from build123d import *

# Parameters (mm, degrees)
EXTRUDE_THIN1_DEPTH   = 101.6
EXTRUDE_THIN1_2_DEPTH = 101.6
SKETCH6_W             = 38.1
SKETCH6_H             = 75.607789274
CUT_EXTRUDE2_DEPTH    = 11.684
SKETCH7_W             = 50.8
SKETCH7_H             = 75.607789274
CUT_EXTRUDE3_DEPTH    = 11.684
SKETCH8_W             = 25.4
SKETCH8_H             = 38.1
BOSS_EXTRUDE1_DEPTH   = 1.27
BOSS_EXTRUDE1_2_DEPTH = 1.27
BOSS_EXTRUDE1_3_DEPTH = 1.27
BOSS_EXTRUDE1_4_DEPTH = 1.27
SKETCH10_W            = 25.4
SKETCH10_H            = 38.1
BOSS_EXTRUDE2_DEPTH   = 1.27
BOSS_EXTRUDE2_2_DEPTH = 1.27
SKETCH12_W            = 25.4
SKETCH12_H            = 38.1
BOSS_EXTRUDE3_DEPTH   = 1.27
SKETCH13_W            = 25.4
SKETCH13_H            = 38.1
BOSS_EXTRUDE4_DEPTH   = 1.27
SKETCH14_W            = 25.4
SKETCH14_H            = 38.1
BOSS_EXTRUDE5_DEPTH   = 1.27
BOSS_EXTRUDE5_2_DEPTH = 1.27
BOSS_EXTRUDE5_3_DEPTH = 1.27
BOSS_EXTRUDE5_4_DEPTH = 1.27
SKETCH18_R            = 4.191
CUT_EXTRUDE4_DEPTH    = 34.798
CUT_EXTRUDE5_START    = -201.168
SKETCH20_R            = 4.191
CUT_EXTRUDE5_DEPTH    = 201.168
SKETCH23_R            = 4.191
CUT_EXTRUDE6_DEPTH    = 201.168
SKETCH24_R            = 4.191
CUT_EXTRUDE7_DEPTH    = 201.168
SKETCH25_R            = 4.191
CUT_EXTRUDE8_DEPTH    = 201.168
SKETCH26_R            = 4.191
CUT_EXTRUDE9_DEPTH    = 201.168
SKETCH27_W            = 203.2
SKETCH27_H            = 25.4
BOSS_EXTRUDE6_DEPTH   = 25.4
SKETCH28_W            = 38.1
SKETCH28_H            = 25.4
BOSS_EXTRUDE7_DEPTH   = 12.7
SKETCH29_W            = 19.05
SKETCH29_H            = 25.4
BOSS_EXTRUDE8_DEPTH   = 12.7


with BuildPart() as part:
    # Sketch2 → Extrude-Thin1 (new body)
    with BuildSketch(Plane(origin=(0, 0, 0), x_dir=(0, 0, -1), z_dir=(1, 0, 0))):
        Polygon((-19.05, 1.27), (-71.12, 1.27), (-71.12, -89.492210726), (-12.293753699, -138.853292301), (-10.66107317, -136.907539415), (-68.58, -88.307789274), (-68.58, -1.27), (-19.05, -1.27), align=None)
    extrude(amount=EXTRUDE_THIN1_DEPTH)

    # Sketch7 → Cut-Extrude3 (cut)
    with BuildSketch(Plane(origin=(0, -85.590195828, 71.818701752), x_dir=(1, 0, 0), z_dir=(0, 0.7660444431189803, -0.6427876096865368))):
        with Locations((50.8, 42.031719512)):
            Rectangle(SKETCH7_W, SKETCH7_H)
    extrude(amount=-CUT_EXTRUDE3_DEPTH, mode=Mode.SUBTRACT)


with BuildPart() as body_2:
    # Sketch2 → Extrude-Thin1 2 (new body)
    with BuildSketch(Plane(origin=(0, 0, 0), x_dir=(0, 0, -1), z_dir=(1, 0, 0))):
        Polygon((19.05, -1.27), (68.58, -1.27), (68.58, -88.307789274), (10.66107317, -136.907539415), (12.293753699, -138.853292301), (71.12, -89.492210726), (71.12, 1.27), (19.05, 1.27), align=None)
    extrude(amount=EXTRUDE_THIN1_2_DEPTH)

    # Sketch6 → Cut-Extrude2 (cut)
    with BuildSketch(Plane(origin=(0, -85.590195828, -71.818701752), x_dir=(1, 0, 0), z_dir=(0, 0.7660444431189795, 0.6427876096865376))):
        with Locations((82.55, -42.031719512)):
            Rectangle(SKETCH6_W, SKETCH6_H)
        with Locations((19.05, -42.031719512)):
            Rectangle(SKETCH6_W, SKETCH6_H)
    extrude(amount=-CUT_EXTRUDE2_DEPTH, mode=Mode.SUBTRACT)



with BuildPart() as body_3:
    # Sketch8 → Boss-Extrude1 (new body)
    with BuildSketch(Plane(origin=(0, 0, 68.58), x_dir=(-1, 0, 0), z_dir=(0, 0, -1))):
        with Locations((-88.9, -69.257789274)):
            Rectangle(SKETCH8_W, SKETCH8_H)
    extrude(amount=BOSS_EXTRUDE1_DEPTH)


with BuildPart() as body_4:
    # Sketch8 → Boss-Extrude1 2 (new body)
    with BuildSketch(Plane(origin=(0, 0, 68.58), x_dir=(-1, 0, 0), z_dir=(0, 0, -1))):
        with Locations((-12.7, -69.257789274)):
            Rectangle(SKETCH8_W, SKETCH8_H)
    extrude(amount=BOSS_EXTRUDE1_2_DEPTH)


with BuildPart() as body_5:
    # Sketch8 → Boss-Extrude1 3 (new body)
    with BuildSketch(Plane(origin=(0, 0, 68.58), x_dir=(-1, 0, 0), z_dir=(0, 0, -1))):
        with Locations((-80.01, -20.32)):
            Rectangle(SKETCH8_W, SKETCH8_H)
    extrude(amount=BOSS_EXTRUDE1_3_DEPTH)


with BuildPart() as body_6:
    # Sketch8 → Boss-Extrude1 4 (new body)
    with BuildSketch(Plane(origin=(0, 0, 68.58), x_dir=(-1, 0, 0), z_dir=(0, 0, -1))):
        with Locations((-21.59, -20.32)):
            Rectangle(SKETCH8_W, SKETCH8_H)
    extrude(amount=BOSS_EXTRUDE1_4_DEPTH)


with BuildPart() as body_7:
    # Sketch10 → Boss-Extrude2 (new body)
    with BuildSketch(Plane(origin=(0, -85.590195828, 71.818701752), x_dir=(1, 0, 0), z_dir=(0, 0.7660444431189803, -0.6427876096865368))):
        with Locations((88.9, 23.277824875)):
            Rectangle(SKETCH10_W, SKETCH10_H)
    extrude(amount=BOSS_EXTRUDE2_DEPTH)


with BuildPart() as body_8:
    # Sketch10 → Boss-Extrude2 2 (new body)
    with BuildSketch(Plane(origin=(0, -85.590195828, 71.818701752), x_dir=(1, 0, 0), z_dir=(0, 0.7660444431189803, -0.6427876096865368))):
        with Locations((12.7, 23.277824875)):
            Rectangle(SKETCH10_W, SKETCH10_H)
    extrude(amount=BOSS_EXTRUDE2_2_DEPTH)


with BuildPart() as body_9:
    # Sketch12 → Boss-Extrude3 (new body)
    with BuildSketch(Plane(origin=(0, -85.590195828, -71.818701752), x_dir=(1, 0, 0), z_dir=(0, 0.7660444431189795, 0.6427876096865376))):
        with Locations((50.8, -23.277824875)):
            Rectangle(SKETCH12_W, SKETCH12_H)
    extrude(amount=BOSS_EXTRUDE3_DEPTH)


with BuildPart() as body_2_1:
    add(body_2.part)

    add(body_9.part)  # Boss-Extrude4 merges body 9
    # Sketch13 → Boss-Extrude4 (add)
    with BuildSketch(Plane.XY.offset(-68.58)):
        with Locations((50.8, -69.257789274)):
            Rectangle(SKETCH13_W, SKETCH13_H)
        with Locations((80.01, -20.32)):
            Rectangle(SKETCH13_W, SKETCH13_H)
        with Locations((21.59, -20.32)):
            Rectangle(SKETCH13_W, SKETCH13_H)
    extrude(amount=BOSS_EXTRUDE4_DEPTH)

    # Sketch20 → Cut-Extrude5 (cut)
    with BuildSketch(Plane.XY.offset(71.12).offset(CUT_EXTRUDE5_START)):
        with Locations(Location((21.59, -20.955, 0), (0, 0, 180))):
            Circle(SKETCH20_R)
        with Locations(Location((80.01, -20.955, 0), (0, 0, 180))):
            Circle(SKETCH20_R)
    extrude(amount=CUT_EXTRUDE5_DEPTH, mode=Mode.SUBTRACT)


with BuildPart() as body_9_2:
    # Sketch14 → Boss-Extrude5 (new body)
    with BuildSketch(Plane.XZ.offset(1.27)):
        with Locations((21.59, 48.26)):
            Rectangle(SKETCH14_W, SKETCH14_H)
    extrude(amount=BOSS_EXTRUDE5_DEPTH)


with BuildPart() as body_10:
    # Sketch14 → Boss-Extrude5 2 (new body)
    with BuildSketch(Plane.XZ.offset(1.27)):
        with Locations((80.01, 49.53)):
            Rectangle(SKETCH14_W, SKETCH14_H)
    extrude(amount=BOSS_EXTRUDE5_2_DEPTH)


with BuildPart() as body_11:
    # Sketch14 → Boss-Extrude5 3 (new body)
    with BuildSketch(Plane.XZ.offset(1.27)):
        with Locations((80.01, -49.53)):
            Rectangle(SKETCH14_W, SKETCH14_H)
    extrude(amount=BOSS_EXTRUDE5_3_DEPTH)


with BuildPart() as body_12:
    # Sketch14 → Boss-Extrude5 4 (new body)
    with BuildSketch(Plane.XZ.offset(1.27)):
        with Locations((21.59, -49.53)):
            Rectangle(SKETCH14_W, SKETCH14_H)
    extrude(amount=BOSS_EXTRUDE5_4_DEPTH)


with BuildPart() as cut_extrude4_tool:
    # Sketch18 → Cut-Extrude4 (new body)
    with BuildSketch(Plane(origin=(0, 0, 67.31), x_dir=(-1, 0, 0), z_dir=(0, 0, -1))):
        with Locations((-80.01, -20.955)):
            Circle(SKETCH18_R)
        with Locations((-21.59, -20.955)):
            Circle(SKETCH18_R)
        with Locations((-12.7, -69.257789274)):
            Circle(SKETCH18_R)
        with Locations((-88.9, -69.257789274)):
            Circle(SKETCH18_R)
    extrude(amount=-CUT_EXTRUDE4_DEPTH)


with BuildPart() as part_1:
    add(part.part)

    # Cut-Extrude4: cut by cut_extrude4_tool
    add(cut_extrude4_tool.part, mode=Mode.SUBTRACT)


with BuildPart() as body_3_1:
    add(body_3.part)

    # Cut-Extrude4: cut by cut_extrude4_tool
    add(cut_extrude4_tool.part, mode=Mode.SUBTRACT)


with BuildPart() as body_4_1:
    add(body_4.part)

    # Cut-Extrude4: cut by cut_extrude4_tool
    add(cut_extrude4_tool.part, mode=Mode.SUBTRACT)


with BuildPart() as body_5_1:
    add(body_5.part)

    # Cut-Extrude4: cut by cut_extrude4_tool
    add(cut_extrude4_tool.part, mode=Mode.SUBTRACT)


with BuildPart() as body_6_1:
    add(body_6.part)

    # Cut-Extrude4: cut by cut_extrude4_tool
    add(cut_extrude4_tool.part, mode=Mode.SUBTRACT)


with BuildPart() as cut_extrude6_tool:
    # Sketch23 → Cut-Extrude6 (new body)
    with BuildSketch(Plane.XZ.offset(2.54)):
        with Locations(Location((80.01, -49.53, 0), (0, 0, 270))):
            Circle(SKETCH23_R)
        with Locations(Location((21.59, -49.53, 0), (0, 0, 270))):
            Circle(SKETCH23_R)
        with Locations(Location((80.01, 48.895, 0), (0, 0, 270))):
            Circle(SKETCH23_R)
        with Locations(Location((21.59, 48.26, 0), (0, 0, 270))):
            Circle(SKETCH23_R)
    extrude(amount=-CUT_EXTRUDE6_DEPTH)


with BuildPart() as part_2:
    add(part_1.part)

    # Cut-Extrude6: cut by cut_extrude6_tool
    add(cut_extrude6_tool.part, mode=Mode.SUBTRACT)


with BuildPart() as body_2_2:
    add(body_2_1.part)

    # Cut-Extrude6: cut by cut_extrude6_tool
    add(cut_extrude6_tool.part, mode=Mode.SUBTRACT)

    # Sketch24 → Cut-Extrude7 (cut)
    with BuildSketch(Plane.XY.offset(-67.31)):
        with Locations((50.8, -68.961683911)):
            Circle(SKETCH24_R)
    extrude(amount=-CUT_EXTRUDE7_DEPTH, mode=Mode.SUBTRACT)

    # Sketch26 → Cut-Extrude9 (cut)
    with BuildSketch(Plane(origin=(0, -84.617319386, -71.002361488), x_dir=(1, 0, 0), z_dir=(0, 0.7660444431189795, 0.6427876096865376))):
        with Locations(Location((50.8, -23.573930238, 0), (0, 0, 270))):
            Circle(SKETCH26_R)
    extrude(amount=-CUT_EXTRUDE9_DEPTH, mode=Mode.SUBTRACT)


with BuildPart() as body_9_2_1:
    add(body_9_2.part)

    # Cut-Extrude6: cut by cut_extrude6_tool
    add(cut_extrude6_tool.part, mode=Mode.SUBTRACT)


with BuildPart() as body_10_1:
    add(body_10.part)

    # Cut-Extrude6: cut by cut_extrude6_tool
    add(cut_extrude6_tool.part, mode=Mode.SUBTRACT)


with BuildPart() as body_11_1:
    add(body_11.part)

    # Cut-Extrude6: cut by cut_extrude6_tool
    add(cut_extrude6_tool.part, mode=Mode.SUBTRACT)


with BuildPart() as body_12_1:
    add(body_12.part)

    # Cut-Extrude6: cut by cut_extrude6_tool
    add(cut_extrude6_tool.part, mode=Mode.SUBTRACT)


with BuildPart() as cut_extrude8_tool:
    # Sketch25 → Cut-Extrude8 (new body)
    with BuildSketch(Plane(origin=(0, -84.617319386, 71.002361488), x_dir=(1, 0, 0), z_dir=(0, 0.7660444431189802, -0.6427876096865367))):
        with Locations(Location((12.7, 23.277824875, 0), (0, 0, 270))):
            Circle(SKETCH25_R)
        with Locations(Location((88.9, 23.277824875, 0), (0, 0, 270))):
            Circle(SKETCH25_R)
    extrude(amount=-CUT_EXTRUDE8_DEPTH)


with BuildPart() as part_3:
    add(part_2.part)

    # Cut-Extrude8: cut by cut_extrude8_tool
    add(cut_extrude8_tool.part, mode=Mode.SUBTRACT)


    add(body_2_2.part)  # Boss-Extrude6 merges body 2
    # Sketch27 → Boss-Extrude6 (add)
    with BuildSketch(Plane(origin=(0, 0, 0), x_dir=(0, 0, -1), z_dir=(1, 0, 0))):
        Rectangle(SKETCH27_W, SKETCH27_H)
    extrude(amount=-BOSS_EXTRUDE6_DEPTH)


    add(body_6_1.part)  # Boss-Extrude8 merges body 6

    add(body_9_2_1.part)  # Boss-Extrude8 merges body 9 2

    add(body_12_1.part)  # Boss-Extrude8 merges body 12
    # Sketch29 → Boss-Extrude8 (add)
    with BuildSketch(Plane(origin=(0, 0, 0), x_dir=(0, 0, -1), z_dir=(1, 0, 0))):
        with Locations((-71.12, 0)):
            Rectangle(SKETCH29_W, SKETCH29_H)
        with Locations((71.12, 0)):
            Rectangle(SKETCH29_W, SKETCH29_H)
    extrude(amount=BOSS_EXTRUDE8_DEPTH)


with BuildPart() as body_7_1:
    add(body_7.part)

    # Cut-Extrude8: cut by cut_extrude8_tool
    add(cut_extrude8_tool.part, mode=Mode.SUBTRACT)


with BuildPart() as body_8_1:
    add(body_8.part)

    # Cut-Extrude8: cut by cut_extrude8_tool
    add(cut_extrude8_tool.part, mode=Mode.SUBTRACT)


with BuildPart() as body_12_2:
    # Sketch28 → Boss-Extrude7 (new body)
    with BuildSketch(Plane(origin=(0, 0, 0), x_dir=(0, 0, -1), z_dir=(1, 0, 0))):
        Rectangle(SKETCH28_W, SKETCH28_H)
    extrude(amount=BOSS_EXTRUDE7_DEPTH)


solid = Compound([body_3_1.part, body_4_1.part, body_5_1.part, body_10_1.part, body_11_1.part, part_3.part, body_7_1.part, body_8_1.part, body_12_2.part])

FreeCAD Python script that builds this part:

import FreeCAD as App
import Part
import Sketcher

V = App.Vector
Q = App.Units.Quantity

doc = App.newDocument("Part")
body = doc.addObject("PartDesign::Body", "Body")

# Sketch on YZ plane
sketch1 = body.newObject("Sketcher::SketchObject", "Sketch")
sketch1.AttachmentSupport = (doc.getObject("YZ_Plane"), [""])
sketch1.MapMode = "FlatFace"
sketch1.addGeometry([
    Part.LineSegment(V(1.27, 19.05, 0), V(1.27, 71.12, 0)),  # 0
    Part.LineSegment(V(1.27, 71.12, 0), V(-89.492211, 71.12, 0)),  # 1
    Part.LineSegment(V(-89.492211, 71.12, 0), V(-138.853292, 12.293754, 0)),  # 2
    Part.LineSegment(V(-138.853292, 12.293754, 0), V(-136.907539, 10.661073, 0)),  # 3
    Part.LineSegment(V(-136.907539, 10.661073, 0), V(-88.307789, 68.58, 0)),  # 4
    Part.LineSegment(V(-88.307789, 68.58, 0), V(-1.27, 68.58, 0)),  # 5
    Part.LineSegment(V(-1.27, 68.58, 0), V(-1.27, 19.05, 0)),  # 6
    Part.LineSegment(V(-1.27, 19.05, 0), V(1.27, 19.05, 0)),  # 7
], False)
sketch1.addConstraint([
    Sketcher.Constraint("Coincident", 0, 2, 1, 1),
    Sketcher.Constraint("Coincident", 1, 2, 2, 1),
    Sketcher.Constraint("Coincident", 2, 2, 3, 1),
    Sketcher.Constraint("Coincident", 3, 2, 4, 1),
    Sketcher.Constraint("Coincident", 4, 2, 5, 1),
    Sketcher.Constraint("Coincident", 5, 2, 6, 1),
    Sketcher.Constraint("Coincident", 6, 2, 7, 1),
    Sketcher.Constraint("Coincident", 7, 2, 0, 1),
    Sketcher.Constraint("Vertical", 0),
    Sketcher.Constraint("Horizontal", 1),
    Sketcher.Constraint("Horizontal", 5),
    Sketcher.Constraint("Vertical", 6),
    Sketcher.Constraint("Horizontal", 7),
    Sketcher.Constraint("Perpendicular", 2, 3),
    Sketcher.Constraint("Perpendicular", 3, 4),
    Sketcher.Constraint("DistanceX", 7, 1, 7, 2, Q("0.1 in")),
    Sketcher.Constraint("Angle", 2, Q("-130 deg")),
    Sketcher.Constraint("Distance", 3, Q("0.1 in")),
    Sketcher.Constraint("DistanceY", 0, 1, 0, 2, Q("2.05 in")),
    Sketcher.Constraint("DistanceY", 6, 2, 6, 1, Q("1.95 in")),
    Sketcher.Constraint("DistanceY", -1, 1, 0, 2, Q("2.8 in")),
    Sketcher.Constraint("DistanceX", -1, 1, 0, 2, Q("0.05 in")),
    Sketcher.Constraint("DistanceX", 1, 2, 1, 1, Q("90.762211 mm")),
    Sketcher.Constraint("Distance", 2, Q("76.792211 mm")),
])
pad1 = body.newObject("PartDesign::Pad", "Pad")
pad1.Profile = sketch1
pad1.Length = Q("4 in")

# Sketch on an angled plane
sketch2 = body.newObject("Sketcher::SketchObject", "Sketch001")
sketch2.Placement = App.Placement(V(0, -85.590196, 71.818702), App.Rotation(V(1, 0, 0), V(0, -0.64278761, -0.766044443), V(0, 0.766044443, -0.64278761), "ZXY"))
sketch2.addGeometry([
    Part.LineSegment(V(25.4, 79.835614, 0), V(25.4, 4.227825, 0)),
    Part.LineSegment(V(25.4, 4.227825, 0), V(76.2, 4.227825, 0)),
    Part.LineSegment(V(76.2, 4.227825, 0), V(76.2, 79.835614, 0)),
    Part.LineSegment(V(76.2, 79.835614, 0), V(25.4, 79.835614, 0)),
], False)
sketch2.addConstraint([
    Sketcher.Constraint("Coincident", 0, 2, 1, 1),
    Sketcher.Constraint("Coincident", 1, 2, 2, 1),
    Sketcher.Constraint("Coincident", 2, 2, 3, 1),
    Sketcher.Constraint("Coincident", 3, 2, 0, 1),
    Sketcher.Constraint("Vertical", 0),
    Sketcher.Constraint("Horizontal", 1),
    Sketcher.Constraint("Vertical", 2),
    Sketcher.Constraint("Horizontal", 3),
    Sketcher.Constraint("DistanceX", 1, 1, 1, 2, Q("2 in")),
    Sketcher.Constraint("DistanceX", -1, 1, 0, 2, Q("1 in")),
    Sketcher.Constraint("DistanceY", 0, 2, 0, 1, Q("75.607789 mm")),
    Sketcher.Constraint("DistanceY", -1, 1, 0, 2, Q("4.227825 mm")),
])
pocket1 = body.newObject("PartDesign::Pocket", "Pocket")
pocket1.Profile = sketch2
pocket1.Length = Q("0.46 in")
body2 = doc.addObject("PartDesign::Body", "Body001")

# Sketch on YZ plane
sketch3 = body2.newObject("Sketcher::SketchObject", "Sketch002")
sketch3.AttachmentSupport = (doc.getObject("YZ_Plane001"), [""])
sketch3.MapMode = "FlatFace"
sketch3.addGeometry([
    Part.LineSegment(V(-1.27, -19.05, 0), V(-1.27, -68.58, 0)),  # 0
    Part.LineSegment(V(-1.27, -68.58, 0), V(-88.307789, -68.58, 0)),  # 1
    Part.LineSegment(V(-88.307789, -68.58, 0), V(-136.907539, -10.661073, 0)),  # 2
    Part.LineSegment(V(-136.907539, -10.661073, 0), V(-138.853292, -12.293754, 0)),  # 3
    Part.LineSegment(V(-138.853292, -12.293754, 0), V(-89.492211, -71.12, 0)),  # 4
    Part.LineSegment(V(-89.492211, -71.12, 0), V(1.27, -71.12, 0)),  # 5
    Part.LineSegment(V(1.27, -71.12, 0), V(1.27, -19.05, 0)),  # 6
    Part.LineSegment(V(1.27, -19.05, 0), V(-1.27, -19.05, 0)),  # 7
], False)
sketch3.addConstraint([
    Sketcher.Constraint("Coincident", 0, 2, 1, 1),
    Sketcher.Constraint("Coincident", 1, 2, 2, 1),
    Sketcher.Constraint("Coincident", 2, 2, 3, 1),
    Sketcher.Constraint("Coincident", 3, 2, 4, 1),
    Sketcher.Constraint("Coincident", 4, 2, 5, 1),
    Sketcher.Constraint("Coincident", 5, 2, 6, 1),
    Sketcher.Constraint("Coincident", 6, 2, 7, 1),
    Sketcher.Constraint("Coincident", 7, 2, 0, 1),
    Sketcher.Constraint("Vertical", 0),
    Sketcher.Constraint("Horizontal", 1),
    Sketcher.Constraint("Horizontal", 5),
    Sketcher.Constraint("Vertical", 6),
    Sketcher.Constraint("Horizontal", 7),
    Sketcher.Constraint("Perpendicular", 2, 3),
    Sketcher.Constraint("Perpendicular", 3, 4),
    Sketcher.Constraint("DistanceX", 7, 2, 7, 1, Q("0.1 in")),
    Sketcher.Constraint("Angle", 2, Q("130 deg")),
    Sketcher.Constraint("Distance", 3, Q("0.1 in")),
    Sketcher.Constraint("DistanceY", 0, 2, 0, 1, Q("1.95 in")),
    Sketcher.Constraint("DistanceY", 6, 1, 6, 2, Q("2.05 in")),
    Sketcher.Constraint("DistanceY", 0, 2, -1, 1, Q("2.7 in")),
    Sketcher.Constraint("DistanceX", 0, 2, -1, 1, Q("0.05 in")),
    Sketcher.Constraint("DistanceX", 1, 2, 1, 1, Q("87.037789 mm")),
    Sketcher.Constraint("Distance", 2, Q("75.607789 mm")),
])
pad2 = body2.newObject("PartDesign::Pad", "Pad001")
pad2.Profile = sketch3
pad2.Length = Q("4 in")

# Sketch on an angled plane
sketch4 = body2.newObject("Sketcher::SketchObject", "Sketch003")
sketch4.Placement = App.Placement(V(0, -85.590196, -71.818702), App.Rotation(V(1, 0, 0), V(0, 0.64278761, -0.766044443), V(0, 0.766044443, 0.64278761), "ZXY"))
sketch4.addGeometry([
    Part.LineSegment(V(63.5, -4.227825, 0), V(63.5, -79.835614, 0)),  # 0
    Part.LineSegment(V(63.5, -79.835614, 0), V(101.6, -79.835614, 0)),  # 1
    Part.LineSegment(V(101.6, -79.835614, 0), V(101.6, -4.227825, 0)),  # 2
    Part.LineSegment(V(101.6, -4.227825, 0), V(63.5, -4.227825, 0)),  # 3
    Part.LineSegment(V(0, -4.227825, 0), V(0, -79.835614, 0)),  # 4
    Part.LineSegment(V(0, -79.835614, 0), V(38.1, -79.835614, 0)),  # 5
    Part.LineSegment(V(38.1, -79.835614, 0), V(38.1, -4.227825, 0)),  # 6
    Part.LineSegment(V(38.1, -4.227825, 0), V(0, -4.227825, 0)),  # 7
], False)
sketch4.addConstraint([
    Sketcher.Constraint("Coincident", 0, 2, 1, 1),
    Sketcher.Constraint("Coincident", 1, 2, 2, 1),
    Sketcher.Constraint("Coincident", 2, 2, 3, 1),
    Sketcher.Constraint("Coincident", 3, 2, 0, 1),
    Sketcher.Constraint("Coincident", 4, 2, 5, 1),
    Sketcher.Constraint("Coincident", 5, 2, 6, 1),
    Sketcher.Constraint("Coincident", 6, 2, 7, 1),
    Sketcher.Constraint("Coincident", 7, 2, 4, 1),
    Sketcher.Constraint("Vertical", 0),
    Sketcher.Constraint("Horizontal", 1),
    Sketcher.Constraint("Vertical", 2),
    Sketcher.Constraint("Horizontal", 3),
    Sketcher.Constraint("Vertical", 4),
    Sketcher.Constraint("Horizontal", 5),
    Sketcher.Constraint("Vertical", 6),
    Sketcher.Constraint("Horizontal", 7),
    Sketcher.Constraint("PointOnObject", 4, 2, -2),
    Sketcher.Constraint("Horizontal", 1, 2, 4, 2),
    Sketcher.Constraint("Horizontal", 3, 2, 6, 2),
    Sketcher.Constraint("Equal", 3, 5),
    Sketcher.Constraint("DistanceX", 1, 1, 1, 2, Q("1.5 in")),
    Sketcher.Constraint("DistanceX", -1, 1, 1, 2, Q("4 in")),
    Sketcher.Constraint("DistanceY", 0, 2, 0, 1, Q("75.607789 mm")),
    Sketcher.Constraint("DistanceY", 0, 2, -1, 1, Q("79.835614 mm")),
])
pocket2 = body2.newObject("PartDesign::Pocket", "Pocket001")
pocket2.Profile = sketch4
pocket2.Length = Q("0.46 in")
body3 = doc.addObject("PartDesign::Body", "Body002")

# Sketch on XY plane
sketch5 = body3.newObject("Sketcher::SketchObject", "Sketch004")
sketch5.AttachmentSupport = (doc.getObject("XY_Plane002"), [""])
sketch5.MapMode = "FlatFace"
sketch5.AttachmentOffset = App.Placement(V(0, 0, 2.7 * 25.4), App.Rotation())
sketch5.addGeometry([
    Part.LineSegment(V(101.6, -50.207789, 0), V(101.6, -88.307789, 0)),
    Part.LineSegment(V(101.6, -88.307789, 0), V(76.2, -88.307789, 0)),
    Part.LineSegment(V(76.2, -88.307789, 0), V(76.2, -50.207789, 0)),
    Part.LineSegment(V(76.2, -50.207789, 0), V(101.6, -50.207789, 0)),
], False)
sketch5.addConstraint([
    Sketcher.Constraint("Coincident", 0, 2, 1, 1),
    Sketcher.Constraint("Coincident", 1, 2, 2, 1),
    Sketcher.Constraint("Coincident", 2, 2, 3, 1),
    Sketcher.Constraint("Coincident", 3, 2, 0, 1),
    Sketcher.Constraint("Vertical", 0),
    Sketcher.Constraint("Horizontal", 1),
    Sketcher.Constraint("Vertical", 2),
    Sketcher.Constraint("Horizontal", 3),
    Sketcher.Constraint("DistanceX", 1, 2, 1, 1, Q("1 in")),
    Sketcher.Constraint("DistanceY", 0, 2, 0, 1, Q("1.5 in")),
    Sketcher.Constraint("DistanceX", -1, 1, 0, 2, Q("4 in")),
    Sketcher.Constraint("DistanceY", 0, 2, -1, 1, Q("88.307789 mm")),
])
pad3 = body3.newObject("PartDesign::Pad", "Pad002")
pad3.Profile = sketch5
pad3.Length = Q("0.05 in")
pad3.Reversed = True
body4 = doc.addObject("PartDesign::Body", "Body003")

# Sketch on XY plane
sketch6 = body4.newObject("Sketcher::SketchObject", "Sketch005")
sketch6.AttachmentSupport = (doc.getObject("XY_Plane003"), [""])
sketch6.MapMode = "FlatFace"
sketch6.AttachmentOffset = App.Placement(V(0, 0, 2.7 * 25.4), App.Rotation())
sketch6.addGeometry([
    Part.LineSegment(V(25.4, -50.207789, 0), V(25.4, -88.307789, 0)),
    Part.LineSegment(V(25.4, -88.307789, 0), V(0, -88.307789, 0)),
    Part.LineSegment(V(0, -88.307789, 0), V(0, -50.207789, 0)),
    Part.LineSegment(V(0, -50.207789, 0), V(25.4, -50.207789, 0)),
], False)
sketch6.addConstraint([
    Sketcher.Constraint("Coincident", 0, 2, 1, 1),
    Sketcher.Constraint("Coincident", 1, 2, 2, 1),
    Sketcher.Constraint("Coincident", 2, 2, 3, 1),
    Sketcher.Constraint("Coincident", 3, 2, 0, 1),
    Sketcher.Constraint("Vertical", 0),
    Sketcher.Constraint("Horizontal", 1),
    Sketcher.Constraint("Vertical", 2),
    Sketcher.Constraint("Horizontal", 3),
    Sketcher.Constraint("PointOnObject", 1, 2, -2),
    Sketcher.Constraint("DistanceX", 1, 2, 1, 1, Q("1 in")),
    Sketcher.Constraint("DistanceY", 0, 2, 0, 1, Q("1.5 in")),
    Sketcher.Constraint("DistanceY", 0, 2, -1, 1, Q("88.307789 mm")),
])
pad4 = body4.newObject("PartDesign::Pad", "Pad003")
pad4.Profile = sketch6
pad4.Length = Q("0.05 in")
pad4.Reversed = True
body5 = doc.addObject("PartDesign::Body", "Body004")

# Sketch on XY plane
sketch7 = body5.newObject("Sketcher::SketchObject", "Sketch006")
sketch7.AttachmentSupport = (doc.getObject("XY_Plane004"), [""])
sketch7.MapMode = "FlatFace"
sketch7.AttachmentOffset = App.Placement(V(0, 0, 2.7 * 25.4), App.Rotation())
sketch7.addGeometry([
    Part.LineSegment(V(92.71, -1.27, 0), V(92.71, -39.37, 0)),
    Part.LineSegment(V(92.71, -39.37, 0), V(67.31, -39.37, 0)),
    Part.LineSegment(V(67.31, -39.37, 0), V(67.31, -1.27, 0)),
    Part.LineSegment(V(67.31, -1.27, 0), V(92.71, -1.27, 0)),
], False)
sketch7.addConstraint([
    Sketcher.Constraint("Coincident", 0, 2, 1, 1),
    Sketcher.Constraint("Coincident", 1, 2, 2, 1),
    Sketcher.Constraint("Coincident", 2, 2, 3, 1),
    Sketcher.Constraint("Coincident", 3, 2, 0, 1),
    Sketcher.Constraint("Vertical", 0),
    Sketcher.Constraint("Horizontal", 1),
    Sketcher.Constraint("Vertical", 2),
    Sketcher.Constraint("Horizontal", 3),
    Sketcher.Constraint("DistanceX", 1, 2, 1, 1, Q("1 in")),
    Sketcher.Constraint("DistanceY", 0, 2, 0, 1, Q("1.5 in")),
    Sketcher.Constraint("DistanceX", -1, 1, 0, 2, Q("3.65 in")),
    Sketcher.Constraint("DistanceY", 0, 2, -1, 1, Q("1.55 in")),
])
pad5 = body5.newObject("PartDesign::Pad", "Pad004")
pad5.Profile = sketch7
pad5.Length = Q("0.05 in")
pad5.Reversed = True
body6 = doc.addObject("PartDesign::Body", "Body005")

# Sketch on XY plane
sketch8 = body6.newObject("Sketcher::SketchObject", "Sketch007")
sketch8.AttachmentSupport = (doc.getObject("XY_Plane005"), [""])
sketch8.MapMode = "FlatFace"
sketch8.AttachmentOffset = App.Placement(V(0, 0, 2.7 * 25.4), App.Rotation())
sketch8.addGeometry([
    Part.LineSegment(V(34.29, -1.27, 0), V(34.29, -39.37, 0)),
    Part.LineSegment(V(34.29, -39.37, 0), V(8.89, -39.37, 0)),
    Part.LineSegment(V(8.89, -39.37, 0), V(8.89, -1.27, 0)),
    Part.LineSegment(V(8.89, -1.27, 0), V(34.29, -1.27, 0)),
], False)
sketch8.addConstraint([
    Sketcher.Constraint("Coincident", 0, 2, 1, 1),
    Sketcher.Constraint("Coincident", 1, 2, 2, 1),
    Sketcher.Constraint("Coincident", 2, 2, 3, 1),
    Sketcher.Constraint("Coincident", 3, 2, 0, 1),
    Sketcher.Constraint("Vertical", 0),
    Sketcher.Constraint("Horizontal", 1),
    Sketcher.Constraint("Vertical", 2),
    Sketcher.Constraint("Horizontal", 3),
    Sketcher.Constraint("DistanceX", 1, 2, 1, 1, Q("1 in")),
    Sketcher.Constraint("DistanceY", 0, 2, 0, 1, Q("1.5 in")),
    Sketcher.Constraint("DistanceX", -1, 1, 0, 2, Q("1.35 in")),
    Sketcher.Constraint("DistanceY", 0, 2, -1, 1, Q("1.55 in")),
])
pad6 = body6.newObject("PartDesign::Pad", "Pad005")
pad6.Profile = sketch8
pad6.Length = Q("0.05 in")
pad6.Reversed = True
body7 = doc.addObject("PartDesign::Body", "Body006")

# Sketch on an angled plane
sketch9 = body7.newObject("Sketcher::SketchObject", "Sketch008")
sketch9.Placement = App.Placement(V(0, -85.590196, 71.818702), App.Rotation(V(1, 0, 0), V(0, -0.64278761, -0.766044443), V(0, 0.766044443, -0.64278761), "ZXY"))
sketch9.addGeometry([
    Part.LineSegment(V(76.2, 42.327825, 0), V(76.2, 4.227825, 0)),
    Part.LineSegment(V(76.2, 4.227825, 0), V(101.6, 4.227825, 0)),
    Part.LineSegment(V(101.6, 4.227825, 0), V(101.6, 42.327825, 0)),
    Part.LineSegment(V(101.6, 42.327825, 0), V(76.2, 42.327825, 0)),
], False)
sketch9.addConstraint([
    Sketcher.Constraint("Coincident", 0, 2, 1, 1),
    Sketcher.Constraint("Coincident", 1, 2, 2, 1),
    Sketcher.Constraint("Coincident", 2, 2, 3, 1),
    Sketcher.Constraint("Coincident", 3, 2, 0, 1),
    Sketcher.Constraint("Vertical", 0),
    Sketcher.Constraint("Horizontal", 1),
    Sketcher.Constraint("Vertical", 2),
    Sketcher.Constraint("Horizontal", 3),
    Sketcher.Constraint("DistanceX", 1, 1, 1, 2, Q("1 in")),
    Sketcher.Constraint("DistanceY", 0, 2, 0, 1, Q("1.5 in")),
    Sketcher.Constraint("DistanceX", -1, 1, 0, 2, Q("3 in")),
    Sketcher.Constraint("DistanceY", -1, 1, 0, 2, Q("4.227825 mm")),
])
pad7 = body7.newObject("PartDesign::Pad", "Pad006")
pad7.Profile = sketch9
pad7.Length = Q("0.05 in")
body8 = doc.addObject("PartDesign::Body", "Body007")

# Sketch on an angled plane
sketch10 = body8.newObject("Sketcher::SketchObject", "Sketch009")
sketch10.Placement = App.Placement(V(0, -85.590196, 71.818702), App.Rotation(V(1, 0, 0), V(0, -0.64278761, -0.766044443), V(0, 0.766044443, -0.64278761), "ZXY"))
sketch10.addGeometry([
    Part.LineSegment(V(0, 42.327825, 0), V(0, 4.227825, 0)),
    Part.LineSegment(V(0, 4.227825, 0), V(25.4, 4.227825, 0)),
    Part.LineSegment(V(25.4, 4.227825, 0), V(25.4, 42.327825, 0)),
    Part.LineSegment(V(25.4, 42.327825, 0), V(0, 42.327825, 0)),
], False)
sketch10.addConstraint([
    Sketcher.Constraint("Coincident", 0, 2, 1, 1),
    Sketcher.Constraint("Coincident", 1, 2, 2, 1),
    Sketcher.Constraint("Coincident", 2, 2, 3, 1),
    Sketcher.Constraint("Coincident", 3, 2, 0, 1),
    Sketcher.Constraint("Vertical", 0),
    Sketcher.Constraint("Horizontal", 1),
    Sketcher.Constraint("Vertical", 2),
    Sketcher.Constraint("Horizontal", 3),
    Sketcher.Constraint("PointOnObject", 0, 2, -2),
    Sketcher.Constraint("DistanceX", 1, 1, 1, 2, Q("1 in")),
    Sketcher.Constraint("DistanceY", 0, 2, 0, 1, Q("1.5 in")),
    Sketcher.Constraint("DistanceY", -1, 1, 0, 2, Q("4.227825 mm")),
])
pad8 = body8.newObject("PartDesign::Pad", "Pad007")
pad8.Profile = sketch10
pad8.Length = Q("0.05 in")
body9 = doc.addObject("PartDesign::Body", "Body008")

# Sketch on an angled plane
sketch11 = body9.newObject("Sketcher::SketchObject", "Sketch010")
sketch11.Placement = App.Placement(V(0, -85.590196, -71.818702), App.Rotation(V(1, 0, 0), V(0, 0.64278761, -0.766044443), V(0, 0.766044443, 0.64278761), "ZXY"))
sketch11.addGeometry([
    Part.LineSegment(V(38.1, -4.227825, 0), V(38.1, -42.327825, 0)),
    Part.LineSegment(V(38.1, -42.327825, 0), V(63.5, -42.327825, 0)),
    Part.LineSegment(V(63.5, -42.327825, 0), V(63.5, -4.227825, 0)),
    Part.LineSegment(V(63.5, -4.227825, 0), V(38.1, -4.227825, 0)),
], False)
sketch11.addConstraint([
    Sketcher.Constraint("Coincident", 0, 2, 1, 1),
    Sketcher.Constraint("Coincident", 1, 2, 2, 1),
    Sketcher.Constraint("Coincident", 2, 2, 3, 1),
    Sketcher.Constraint("Coincident", 3, 2, 0, 1),
    Sketcher.Constraint("Vertical", 0),
    Sketcher.Constraint("Horizontal", 1),
    Sketcher.Constraint("Vertical", 2),
    Sketcher.Constraint("Horizontal", 3),
    Sketcher.Constraint("DistanceX", 1, 1, 1, 2, Q("1 in")),
    Sketcher.Constraint("DistanceY", 0, 2, 0, 1, Q("1.5 in")),
    Sketcher.Constraint("DistanceX", -1, 1, 0, 2, Q("1.5 in")),
    Sketcher.Constraint("DistanceY", 0, 2, -1, 1, Q("42.327825 mm")),
])
pad9 = body9.newObject("PartDesign::Pad", "Pad008")
pad9.Profile = sketch11
pad9.Length = Q("0.05 in")
doc.recompute()

boolean = body2.newObject("PartDesign::Boolean", "Boolean")
boolean.Type = "Fuse"
boolean.addObjects([body9])

# Sketch on XY plane
sketch12 = body2.newObject("Sketcher::SketchObject", "Sketch011")
sketch12.AttachmentSupport = (doc.getObject("XY_Plane001"), [""])
sketch12.MapMode = "FlatFace"
sketch12.AttachmentOffset = App.Placement(V(0, 0, -2.7 * 25.4), App.Rotation())
sketch12.addGeometry([
    Part.LineSegment(V(38.1, -50.207789, 0), V(38.1, -88.307789, 0)),  # 0
    Part.LineSegment(V(38.1, -88.307789, 0), V(63.5, -88.307789, 0)),  # 1
    Part.LineSegment(V(63.5, -88.307789, 0), V(63.5, -50.207789, 0)),  # 2
    Part.LineSegment(V(63.5, -50.207789, 0), V(38.1, -50.207789, 0)),  # 3
    Part.LineSegment(V(67.31, -1.27, 0), V(67.31, -39.37, 0)),  # 4
    Part.LineSegment(V(67.31, -39.37, 0), V(92.71, -39.37, 0)),  # 5
    Part.LineSegment(V(92.71, -39.37, 0), V(92.71, -1.27, 0)),  # 6
    Part.LineSegment(V(92.71, -1.27, 0), V(67.31, -1.27, 0)),  # 7
    Part.LineSegment(V(8.89, -1.27, 0), V(8.89, -39.37, 0)),  # 8
    Part.LineSegment(V(8.89, -39.37, 0), V(34.29, -39.37, 0)),  # 9
    Part.LineSegment(V(34.29, -39.37, 0), V(34.29, -1.27, 0)),  # 10
    Part.LineSegment(V(34.29, -1.27, 0), V(8.89, -1.27, 0)),  # 11
], False)
sketch12.addConstraint([
    Sketcher.Constraint("Coincident", 0, 2, 1, 1),
    Sketcher.Constraint("Coincident", 1, 2, 2, 1),
    Sketcher.Constraint("Coincident", 2, 2, 3, 1),
    Sketcher.Constraint("Coincident", 3, 2, 0, 1),
    Sketcher.Constraint("Coincident", 4, 2, 5, 1),
    Sketcher.Constraint("Coincident", 5, 2, 6, 1),
    Sketcher.Constraint("Coincident", 6, 2, 7, 1),
    Sketcher.Constraint("Coincident", 7, 2, 4, 1),
    Sketcher.Constraint("Coincident", 8, 2, 9, 1),
    Sketcher.Constraint("Coincident", 9, 2, 10, 1),
    Sketcher.Constraint("Coincident", 10, 2, 11, 1),
    Sketcher.Constraint("Coincident", 11, 2, 8, 1),
    Sketcher.Constraint("Vertical", 0),
    Sketcher.Constraint("Horizontal", 1),
    Sketcher.Constraint("Vertical", 2),
    Sketcher.Constraint("Horizontal", 3),
    Sketcher.Constraint("Vertical", 4),
    Sketcher.Constraint("Horizontal", 5),
    Sketcher.Constraint("Vertical", 6),
    Sketcher.Constraint("Horizontal", 7),
    Sketcher.Constraint("Vertical", 8),
    Sketcher.Constraint("Horizontal", 9),
    Sketcher.Constraint("Vertical", 10),
    Sketcher.Constraint("Horizontal", 11),
    Sketcher.Constraint("Horizontal", 5, 2, 8, 2),
    Sketcher.Constraint("Horizontal", 7, 2, 10, 2),
    Sketcher.Constraint("Equal", 3, 5),
    Sketcher.Constraint("Equal", 7, 9),
    Sketcher.Constraint("Equal", 2, 4),
    Sketcher.Constraint("DistanceX", 1, 1, 1, 2, Q("1 in")),
    Sketcher.Constraint("DistanceY", 0, 2, 0, 1, Q("1.5 in")),
    Sketcher.Constraint("DistanceX", -1, 1, 0, 2, Q("1.5 in")),
    Sketcher.Constraint("DistanceX", 8, 2, 4, 2, Q("2.3 in")),
    Sketcher.Constraint("DistanceX", -1, 1, 4, 2, Q("2.65 in")),
    Sketcher.Constraint("DistanceY", 4, 2, -1, 1, Q("1.55 in")),
    Sketcher.Constraint("DistanceY", 0, 2, -1, 1, Q("88.307789 mm")),
])
pad10 = body2.newObject("PartDesign::Pad", "Pad009")
pad10.Profile = sketch12
pad10.Length = Q("0.05 in")

# Sketch on XY plane
sketch13 = body2.newObject("Sketcher::SketchObject", "Sketch012")
sketch13.AttachmentSupport = (doc.getObject("XY_Plane001"), [""])
sketch13.MapMode = "FlatFace"
sketch13.AttachmentOffset = App.Placement(V(0, 0, -5.12 * 25.4), App.Rotation())
sketch13.addGeometry([
    Part.Circle(V(21.59, -20.955, 0), V(0, 0, 1), 4.191),
    Part.Circle(V(80.01, -20.955, 0), V(0, 0, 1), 4.191),
], False)
sketch13.addConstraint([
    Sketcher.Constraint("Equal", 0, 1),
    Sketcher.Constraint("Horizontal", 0, 3, 1, 3),
    Sketcher.Constraint("Diameter", 0, Q("0.33 in")),
    Sketcher.Constraint("DistanceX", 0, 3, 1, 3, Q("2.3 in")),
    Sketcher.Constraint("DistanceX", -1, 1, 0, 3, Q("0.85 in")),
    Sketcher.Constraint("DistanceY", 0, 3, -1, 1, Q("0.825 in")),
])
pocket3 = body2.newObject("PartDesign::Pocket", "Pocket002")
pocket3.Profile = sketch13
pocket3.Length = Q("7.92 in")
pocket3.Reversed = True
body10 = doc.addObject("PartDesign::Body", "Body009")

# Sketch on XZ plane
sketch14 = body10.newObject("Sketcher::SketchObject", "Sketch013")
sketch14.AttachmentSupport = (doc.getObject("XZ_Plane009"), [""])
sketch14.MapMode = "FlatFace"
sketch14.AttachmentOffset = App.Placement(V(0, 0, 0.05 * 25.4), App.Rotation())
sketch14.addGeometry([
    Part.LineSegment(V(8.89, 67.31, 0), V(8.89, 29.21, 0)),
    Part.LineSegment(V(8.89, 29.21, 0), V(34.29, 29.21, 0)),
    Part.LineSegment(V(34.29, 29.21, 0), V(34.29, 67.31, 0)),
    Part.LineSegment(V(34.29, 67.31, 0), V(8.89, 67.31, 0)),
], False)
sketch14.addConstraint([
    Sketcher.Constraint("Coincident", 0, 2, 1, 1),
    Sketcher.Constraint("Coincident", 1, 2, 2, 1),
    Sketcher.Constraint("Coincident", 2, 2, 3, 1),
    Sketcher.Constraint("Coincident", 3, 2, 0, 1),
    Sketcher.Constraint("Vertical", 0),
    Sketcher.Constraint("Horizontal", 1),
    Sketcher.Constraint("Vertical", 2),
    Sketcher.Constraint("Horizontal", 3),
    Sketcher.Constraint("DistanceX", 1, 1, 1, 2, Q("1 in")),
    Sketcher.Constraint("DistanceY", 0, 2, 0, 1, Q("1.5 in")),
    Sketcher.Constraint("DistanceX", -1, 1, 0, 2, Q("0.35 in")),
    Sketcher.Constraint("DistanceY", -1, 1, 0, 2, Q("1.15 in")),
])
pad11 = body10.newObject("PartDesign::Pad", "Pad010")
pad11.Profile = sketch14
pad11.Length = Q("0.05 in")
body11 = doc.addObject("PartDesign::Body", "Body010")

# Sketch on XZ plane
sketch15 = body11.newObject("Sketcher::SketchObject", "Sketch014")
sketch15.AttachmentSupport = (doc.getObject("XZ_Plane010"), [""])
sketch15.MapMode = "FlatFace"
sketch15.AttachmentOffset = App.Placement(V(0, 0, 0.05 * 25.4), App.Rotation())
sketch15.addGeometry([
    Part.LineSegment(V(67.31, 68.58, 0), V(67.31, 30.48, 0)),
    Part.LineSegment(V(67.31, 30.48, 0), V(92.71, 30.48, 0)),
    Part.LineSegment(V(92.71, 30.48, 0), V(92.71, 68.58, 0)),
    Part.LineSegment(V(92.71, 68.58, 0), V(67.31, 68.58, 0)),
], False)
sketch15.addConstraint([
    Sketcher.Constraint("Coincident", 0, 2, 1, 1),
    Sketcher.Constraint("Coincident", 1, 2, 2, 1),
    Sketcher.Constraint("Coincident", 2, 2, 3, 1),
    Sketcher.Constraint("Coincident", 3, 2, 0, 1),
    Sketcher.Constraint("Vertical", 0),
    Sketcher.Constraint("Horizontal", 1),
    Sketcher.Constraint("Vertical", 2),
    Sketcher.Constraint("Horizontal", 3),
    Sketcher.Constraint("DistanceX", 1, 1, 1, 2, Q("1 in")),
    Sketcher.Constraint("DistanceY", 0, 2, 0, 1, Q("1.5 in")),
    Sketcher.Constraint("DistanceY", -1, 1, 0, 2, Q("1.2 in")),
    Sketcher.Constraint("DistanceX", -1, 1, 0, 2, Q("2.65 in")),
])
pad12 = body11.newObject("PartDesign::Pad", "Pad011")
pad12.Profile = sketch15
pad12.Length = Q("0.05 in")
body12 = doc.addObject("PartDesign::Body", "Body011")

# Sketch on XZ plane
sketch16 = body12.newObject("Sketcher::SketchObject", "Sketch015")
sketch16.AttachmentSupport = (doc.getObject("XZ_Plane011"), [""])
sketch16.MapMode = "FlatFace"
sketch16.AttachmentOffset = App.Placement(V(0, 0, 0.05 * 25.4), App.Rotation())
sketch16.addGeometry([
    Part.LineSegment(V(67.31, -30.48, 0), V(67.31, -68.58, 0)),
    Part.LineSegment(V(67.31, -68.58, 0), V(92.71, -68.58, 0)),
    Part.LineSegment(V(92.71, -68.58, 0), V(92.71, -30.48, 0)),
    Part.LineSegment(V(92.71, -30.48, 0), V(67.31, -30.48, 0)),
], False)
sketch16.addConstraint([
    Sketcher.Constraint("Coincident", 0, 2, 1, 1),
    Sketcher.Constraint("Coincident", 1, 2, 2, 1),
    Sketcher.Constraint("Coincident", 2, 2, 3, 1),
    Sketcher.Constraint("Coincident", 3, 2, 0, 1),
    Sketcher.Constraint("Vertical", 0),
    Sketcher.Constraint("Horizontal", 1),
    Sketcher.Constraint("Vertical", 2),
    Sketcher.Constraint("Horizontal", 3),
    Sketcher.Constraint("DistanceX", 1, 1, 1, 2, Q("1 in")),
    Sketcher.Constraint("DistanceY", 0, 2, 0, 1, Q("1.5 in")),
    Sketcher.Constraint("DistanceY", 0, 2, -1, 1, Q("2.7 in")),
    Sketcher.Constraint("DistanceX", -1, 1, 0, 2, Q("2.65 in")),
])
pad13 = body12.newObject("PartDesign::Pad", "Pad012")
pad13.Profile = sketch16
pad13.Length = Q("0.05 in")
body13 = doc.addObject("PartDesign::Body", "Body012")

# Sketch on XZ plane
sketch17 = body13.newObject("Sketcher::SketchObject", "Sketch016")
sketch17.AttachmentSupport = (doc.getObject("XZ_Plane012"), [""])
sketch17.MapMode = "FlatFace"
sketch17.AttachmentOffset = App.Placement(V(0, 0, 0.05 * 25.4), App.Rotation())
sketch17.addGeometry([
    Part.LineSegment(V(8.89, -30.48, 0), V(8.89, -68.58, 0)),
    Part.LineSegment(V(8.89, -68.58, 0), V(34.29, -68.58, 0)),
    Part.LineSegment(V(34.29, -68.58, 0), V(34.29, -30.48, 0)),
    Part.LineSegment(V(34.29, -30.48, 0), V(8.89, -30.48, 0)),
], False)
sketch17.addConstraint([
    Sketcher.Constraint("Coincident", 0, 2, 1, 1),
    Sketcher.Constraint("Coincident", 1, 2, 2, 1),
    Sketcher.Constraint("Coincident", 2, 2, 3, 1),
    Sketcher.Constraint("Coincident", 3, 2, 0, 1),
    Sketcher.Constraint("Vertical", 0),
    Sketcher.Constraint("Horizontal", 1),
    Sketcher.Constraint("Vertical", 2),
    Sketcher.Constraint("Horizontal", 3),
    Sketcher.Constraint("DistanceX", 1, 1, 1, 2, Q("1 in")),
    Sketcher.Constraint("DistanceY", 0, 2, 0, 1, Q("1.5 in")),
    Sketcher.Constraint("DistanceY", 0, 2, -1, 1, Q("2.7 in")),
    Sketcher.Constraint("DistanceX", -1, 1, 0, 2, Q("0.35 in")),
])
pad14 = body13.newObject("PartDesign::Pad", "Pad013")
pad14.Profile = sketch17
pad14.Length = Q("0.05 in")
body14 = doc.addObject("PartDesign::Body", "Body013")
body14.AllowCompound = True

# Sketch on XY plane
sketch18 = body14.newObject("Sketcher::SketchObject", "Sketch017")
sketch18.AttachmentSupport = (doc.getObject("XY_Plane013"), [""])
sketch18.MapMode = "FlatFace"
sketch18.AttachmentOffset = App.Placement(V(0, 0, 2.65 * 25.4), App.Rotation())
sketch18.addGeometry([
    Part.Circle(V(80.01, -20.955, 0), V(0, 0, 1), 4.191),
    Part.Circle(V(21.59, -20.955, 0), V(0, 0, 1), 4.191),
    Part.Circle(V(12.7, -69.257789, 0), V(0, 0, 1), 4.191),
    Part.Circle(V(88.9, -69.257789, 0), V(0, 0, 1), 4.191),
], False)
sketch18.addConstraint([
    Sketcher.Constraint("Equal", 0, 1),
    Sketcher.Constraint("Equal", 1, 2),
    Sketcher.Constraint("Equal", 2, 3),
    Sketcher.Constraint("Horizontal", 0, 3, 1, 3),
    Sketcher.Constraint("Horizontal", 2, 3, 3, 3),
    Sketcher.Constraint("Diameter", 0, Q("0.33 in")),
    Sketcher.Constraint("DistanceX", 2, 3, 3, 3, Q("3 in")),
    Sketcher.Constraint("DistanceX", -1, 1, 2, 3, Q("0.5 in")),
    Sketcher.Constraint("DistanceX", 1, 3, 0, 3, Q("2.3 in")),
    Sketcher.Constraint("DistanceX", -1, 1, 0, 3, Q("3.15 in")),
    Sketcher.Constraint("DistanceY", 0, 3, -1, 1, Q("0.825 in")),
    Sketcher.Constraint("DistanceY", 2, 3, -1, 1, Q("69.257789 mm")),
])
pad15 = body14.newObject("PartDesign::Pad", "Pad014")
pad15.Profile = sketch18
pad15.Length = Q("1.37 in")
doc.recompute()

body15 = doc.addObject("PartDesign::Body", "Body014")
body15.BaseFeature = body14
boolean2 = body.newObject("PartDesign::Boolean", "Boolean001")
boolean2.Type = "Cut"
boolean2.addObjects([body15])
doc.recompute()

body16 = doc.addObject("PartDesign::Body", "Body015")
body16.BaseFeature = body14
boolean3 = body3.newObject("PartDesign::Boolean", "Boolean002")
boolean3.Type = "Cut"
boolean3.addObjects([body16])
doc.recompute()

body17 = doc.addObject("PartDesign::Body", "Body016")
body17.BaseFeature = body14
boolean4 = body4.newObject("PartDesign::Boolean", "Boolean003")
boolean4.Type = "Cut"
boolean4.addObjects([body17])
doc.recompute()

body18 = doc.addObject("PartDesign::Body", "Body017")
body18.BaseFeature = body14
boolean5 = body5.newObject("PartDesign::Boolean", "Boolean004")
boolean5.Type = "Cut"
boolean5.addObjects([body18])
doc.recompute()

boolean6 = body6.newObject("PartDesign::Boolean", "Boolean005")
boolean6.Type = "Cut"
boolean6.addObjects([body14])
body19 = doc.addObject("PartDesign::Body", "Body018")
body19.AllowCompound = True

# Sketch on XZ plane
sketch19 = body19.newObject("Sketcher::SketchObject", "Sketch018")
sketch19.AttachmentSupport = (doc.getObject("XZ_Plane018"), [""])
sketch19.MapMode = "FlatFace"
sketch19.AttachmentOffset = App.Placement(V(0, 0, 0.1 * 25.4), App.Rotation())
sketch19.addGeometry([
    Part.Circle(V(80.01, -49.53, 0), V(0, 0, 1), 4.191),
    Part.Circle(V(21.59, -49.53, 0), V(0, 0, 1), 4.191),
    Part.Circle(V(80.01, 48.895, 0), V(0, 0, 1), 4.191),
    Part.Circle(V(21.59, 48.26, 0), V(0, 0, 1), 4.191),
], False)
sketch19.addConstraint([
    Sketcher.Constraint("Equal", 0, 1),
    Sketcher.Constraint("Equal", 1, 2),
    Sketcher.Constraint("Equal", 2, 3),
    Sketcher.Constraint("Horizontal", 0, 3, 1, 3),
    Sketcher.Constraint("Vertical", 0, 3, 2, 3),
    Sketcher.Constraint("Vertical", 1, 3, 3, 3),
    Sketcher.Constraint("Diameter", 0, Q("0.33 in")),
    Sketcher.Constraint("DistanceY", -1, 1, 3, 3, Q("1.9 in")),
    Sketcher.Constraint("DistanceX", 1, 3, 0, 3, Q("2.3 in")),
    Sketcher.Constraint("DistanceX", -1, 1, 0, 3, Q("3.15 in")),
    Sketcher.Constraint("DistanceY", 0, 3, -1, 1, Q("1.95 in")),
    Sketcher.Constraint("DistanceY", -1, 1, 2, 3, Q("1.925 in")),
])
pad16 = body19.newObject("PartDesign::Pad", "Pad015")
pad16.Profile = sketch19
pad16.Length = Q("7.92 in")
pad16.Reversed = True
doc.recompute()

body20 = doc.addObject("PartDesign::Body", "Body019")
body20.BaseFeature = body19
boolean7 = body.newObject("PartDesign::Boolean", "Boolean006")
boolean7.Type = "Cut"
boolean7.addObjects([body20])
doc.recompute()

body21 = doc.addObject("PartDesign::Body", "Body020")
body21.BaseFeature = body19
boolean8 = body2.newObject("PartDesign::Boolean", "Boolean007")
boolean8.Type = "Cut"
boolean8.addObjects([body21])
doc.recompute()

# Sketch on XY plane
sketch20 = body2.newObject("Sketcher::SketchObject", "Sketch019")
sketch20.AttachmentSupport = (doc.getObject("XY_Plane001"), [""])
sketch20.MapMode = "FlatFace"
sketch20.AttachmentOffset = App.Placement(V(0, 0, -2.65 * 25.4), App.Rotation())
sketch20.addGeometry(Part.Circle(V(50.8, -68.961684, 0), V(0, 0, 1), 4.191), False)
sketch20.addConstraint([
    Sketcher.Constraint("Diameter", 0, Q("0.33 in")),
    Sketcher.Constraint("DistanceX", -1, 1, 0, 3, Q("2 in")),
    Sketcher.Constraint("DistanceY", 0, 3, -1, 1, Q("68.961684 mm")),
])
pocket4 = body2.newObject("PartDesign::Pocket", "Pocket003")
pocket4.Profile = sketch20
pocket4.Length = Q("7.92 in")

# Sketch on an angled plane
sketch21 = body2.newObject("Sketcher::SketchObject", "Sketch020")
sketch21.Placement = App.Placement(V(0, -84.617319, -71.002361), App.Rotation(V(1, 0, 0), V(0, 0.64278761, -0.766044443), V(0, 0.766044443, 0.64278761), "ZXY"))
sketch21.addGeometry(Part.Circle(V(50.8, -23.57393, 0), V(0, 0, 1), 4.191), False)
sketch21.addConstraint([
    Sketcher.Constraint("Diameter", 0, Q("0.33 in")),
    Sketcher.Constraint("DistanceX", -1, 1, 0, 3, Q("2 in")),
    Sketcher.Constraint("DistanceY", 0, 3, -1, 1, Q("23.57393 mm")),
])
pocket5 = body2.newObject("PartDesign::Pocket", "Pocket004")
pocket5.Profile = sketch21
pocket5.Length = Q("7.92 in")
doc.recompute()

body22 = doc.addObject("PartDesign::Body", "Body021")
body22.BaseFeature = body19
boolean9 = body10.newObject("PartDesign::Boolean", "Boolean008")
boolean9.Type = "Cut"
boolean9.addObjects([body22])
doc.recompute()

body23 = doc.addObject("PartDesign::Body", "Body022")
body23.BaseFeature = body19
boolean10 = body11.newObject("PartDesign::Boolean", "Boolean009")
boolean10.Type = "Cut"
boolean10.addObjects([body23])
doc.recompute()

body24 = doc.addObject("PartDesign::Body", "Body023")
body24.BaseFeature = body19
boolean11 = body12.newObject("PartDesign::Boolean", "Boolean010")
boolean11.Type = "Cut"
boolean11.addObjects([body24])
doc.recompute()

boolean12 = body13.newObject("PartDesign::Boolean", "Boolean011")
boolean12.Type = "Cut"
boolean12.addObjects([body19])
body25 = doc.addObject("PartDesign::Body", "Body024")
body25.AllowCompound = True

# Sketch on an angled plane
sketch22 = body25.newObject("Sketcher::SketchObject", "Sketch021")
sketch22.Placement = App.Placement(V(0, -84.617319, 71.002361), App.Rotation(V(1, 0, 0), V(0, -0.64278761, -0.766044443), V(0, 0.766044443, -0.64278761), "ZXY"))
sketch22.addGeometry([
    Part.Circle(V(12.7, 23.277825, 0), V(0, 0, 1), 4.191),
    Part.Circle(V(88.9, 23.277825, 0), V(0, 0, 1), 4.191),
], False)
sketch22.addConstraint([
    Sketcher.Constraint("Equal", 0, 1),
    Sketcher.Constraint("Horizontal", 0, 3, 1, 3),
    Sketcher.Constraint("Diameter", 0, Q("0.33 in")),
    Sketcher.Constraint("DistanceX", 0, 3, 1, 3, Q("3 in")),
    Sketcher.Constraint("DistanceX", -1, 1, 0, 3, Q("0.5 in")),
    Sketcher.Constraint("DistanceY", -1, 1, 0, 3, Q("23.277825 mm")),
])
pad17 = body25.newObject("PartDesign::Pad", "Pad016")
pad17.Profile = sketch22
pad17.Length = Q("7.92 in")
pad17.Reversed = True
body.AllowCompound = True
doc.recompute()

body26 = doc.addObject("PartDesign::Body", "Body025")
body26.BaseFeature = body25
boolean13 = body.newObject("PartDesign::Boolean", "Boolean012")
boolean13.Type = "Cut"
boolean13.addObjects([body26])
doc.recompute()

boolean14 = body.newObject("PartDesign::Boolean", "Boolean013")
boolean14.Type = "Fuse"
boolean14.addObjects([body2])

# Sketch on YZ plane
sketch23 = body.newObject("Sketcher::SketchObject", "Sketch022")
sketch23.AttachmentSupport = (doc.getObject("YZ_Plane"), [""])
sketch23.MapMode = "FlatFace"
sketch23.addGeometry([
    Part.LineSegment(V(12.7, 101.6, 0), V(-12.7, 101.6, 0)),
    Part.LineSegment(V(-12.7, 101.6, 0), V(-12.7, -101.6, 0)),
    Part.LineSegment(V(-12.7, -101.6, 0), V(12.7, -101.6, 0)),
    Part.LineSegment(V(12.7, -101.6, 0), V(12.7, 101.6, 0)),
], False)
sketch23.addConstraint([
    Sketcher.Constraint("Coincident", 0, 2, 1, 1),
    Sketcher.Constraint("Coincident", 1, 2, 2, 1),
    Sketcher.Constraint("Coincident", 2, 2, 3, 1),
    Sketcher.Constraint("Coincident", 3, 2, 0, 1),
    Sketcher.Constraint("Horizontal", 0),
    Sketcher.Constraint("Vertical", 1),
    Sketcher.Constraint("Horizontal", 2),
    Sketcher.Constraint("Vertical", 3),
    Sketcher.Constraint("Symmetric", 0, 2, 2, 2, -1, 1),
    Sketcher.Constraint("DistanceX", 0, 2, 0, 1, Q("1 in")),
    Sketcher.Constraint("DistanceY", 1, 2, 1, 1, Q("8 in")),
])
pad18 = body.newObject("PartDesign::Pad", "Pad017")
pad18.Profile = sketch23
pad18.Length = Q("1 in")
pad18.Reversed = True
doc.recompute()

boolean15 = body.newObject("PartDesign::Boolean", "Boolean014")
boolean15.Type = "Fuse"
boolean15.addObjects([body6])
doc.recompute()

boolean16 = body.newObject("PartDesign::Boolean", "Boolean015")
boolean16.Type = "Fuse"
boolean16.addObjects([body10])
doc.recompute()

boolean17 = body.newObject("PartDesign::Boolean", "Boolean016")
boolean17.Type = "Fuse"
boolean17.addObjects([body13])

# Sketch on YZ plane
sketch24 = body.newObject("Sketcher::SketchObject", "Sketch023")
sketch24.AttachmentSupport = (doc.getObject("YZ_Plane"), [""])
sketch24.MapMode = "FlatFace"
sketch24.addGeometry([
    Part.LineSegment(V(12.7, 80.645, 0), V(-12.7, 80.645, 0)),  # 0
    Part.LineSegment(V(-12.7, 80.645, 0), V(-12.7, 61.595, 0)),  # 1
    Part.LineSegment(V(-12.7, 61.595, 0), V(12.7, 61.595, 0)),  # 2
    Part.LineSegment(V(12.7, 61.595, 0), V(12.7, 80.645, 0)),  # 3
    Part.LineSegment(V(12.7, -61.595, 0), V(-12.7, -61.595, 0)),  # 4
    Part.LineSegment(V(-12.7, -61.595, 0), V(-12.7, -80.645, 0)),  # 5
    Part.LineSegment(V(-12.7, -80.645, 0), V(12.7, -80.645, 0)),  # 6
    Part.LineSegment(V(12.7, -80.645, 0), V(12.7, -61.595, 0)),  # 7
], False)
sketch24.addConstraint([
    Sketcher.Constraint("Coincident", 0, 2, 1, 1),
    Sketcher.Constraint("Coincident", 1, 2, 2, 1),
    Sketcher.Constraint("Coincident", 2, 2, 3, 1),
    Sketcher.Constraint("Coincident", 3, 2, 0, 1),
    Sketcher.Constraint("Coincident", 4, 2, 5, 1),
    Sketcher.Constraint("Coincident", 5, 2, 6, 1),
    Sketcher.Constraint("Coincident", 6, 2, 7, 1),
    Sketcher.Constraint("Coincident", 7, 2, 4, 1),
    Sketcher.Constraint("Horizontal", 0),
    Sketcher.Constraint("Vertical", 1),
    Sketcher.Constraint("Horizontal", 2),
    Sketcher.Constraint("Vertical", 3),
    Sketcher.Constraint("Horizontal", 4),
    Sketcher.Constraint("Vertical", 5),
    Sketcher.Constraint("Horizontal", 6),
    Sketcher.Constraint("Vertical", 7),
    Sketcher.Constraint("Symmetric", 2, 2, 4, 2, -1, 1),
    Sketcher.Constraint("Symmetric", 0, 2, 6, 2, -1, 1),
    Sketcher.Constraint("Vertical", 1, 2, 4, 2),
    Sketcher.Constraint("DistanceX", 0, 2, 0, 1, Q("1 in")),
    Sketcher.Constraint("DistanceY", 1, 2, 1, 1, Q("0.75 in")),
    Sketcher.Constraint("DistanceY", 4, 2, 0, 2, Q("5.6 in")),
])
pad19 = body.newObject("PartDesign::Pad", "Pad018")
pad19.Profile = sketch24
pad19.Length = Q("0.5 in")
doc.recompute()

body27 = doc.addObject("PartDesign::Body", "Body026")
body27.BaseFeature = body25
boolean18 = body7.newObject("PartDesign::Boolean", "Boolean017")
boolean18.Type = "Cut"
boolean18.addObjects([body27])
doc.recompute()

boolean19 = body8.newObject("PartDesign::Boolean", "Boolean018")
boolean19.Type = "Cut"
boolean19.addObjects([body25])
body28 = doc.addObject("PartDesign::Body", "Body027")

# Sketch on YZ plane
sketch25 = body28.newObject("Sketcher::SketchObject", "Sketch024")
sketch25.AttachmentSupport = (doc.getObject("YZ_Plane027"), [""])
sketch25.MapMode = "FlatFace"
sketch25.addGeometry([
    Part.LineSegment(V(12.7, 19.05, 0), V(-12.7, 19.05, 0)),
    Part.LineSegment(V(-12.7, 19.05, 0), V(-12.7, -19.05, 0)),
    Part.LineSegment(V(-12.7, -19.05, 0), V(12.7, -19.05, 0)),
    Part.LineSegment(V(12.7, -19.05, 0), V(12.7, 19.05, 0)),
], False)
sketch25.addConstraint([
    Sketcher.Constraint("Coincident", 0, 2, 1, 1),
    Sketcher.Constraint("Coincident", 1, 2, 2, 1),
    Sketcher.Constraint("Coincident", 2, 2, 3, 1),
    Sketcher.Constraint("Coincident", 3, 2, 0, 1),
    Sketcher.Constraint("Horizontal", 0),
    Sketcher.Constraint("Vertical", 1),
    Sketcher.Constraint("Horizontal", 2),
    Sketcher.Constraint("Vertical", 3),
    Sketcher.Constraint("Symmetric", 0, 2, 2, 2, -1, 1),
    Sketcher.Constraint("DistanceX", 0, 2, 0, 1, Q("1 in")),
    Sketcher.Constraint("DistanceY", 1, 2, 1, 1, Q("1.5 in")),
])
pad20 = body28.newObject("PartDesign::Pad", "Pad019")
pad20.Profile = sketch25
pad20.Length = Q("0.5 in")

doc.recompute()
